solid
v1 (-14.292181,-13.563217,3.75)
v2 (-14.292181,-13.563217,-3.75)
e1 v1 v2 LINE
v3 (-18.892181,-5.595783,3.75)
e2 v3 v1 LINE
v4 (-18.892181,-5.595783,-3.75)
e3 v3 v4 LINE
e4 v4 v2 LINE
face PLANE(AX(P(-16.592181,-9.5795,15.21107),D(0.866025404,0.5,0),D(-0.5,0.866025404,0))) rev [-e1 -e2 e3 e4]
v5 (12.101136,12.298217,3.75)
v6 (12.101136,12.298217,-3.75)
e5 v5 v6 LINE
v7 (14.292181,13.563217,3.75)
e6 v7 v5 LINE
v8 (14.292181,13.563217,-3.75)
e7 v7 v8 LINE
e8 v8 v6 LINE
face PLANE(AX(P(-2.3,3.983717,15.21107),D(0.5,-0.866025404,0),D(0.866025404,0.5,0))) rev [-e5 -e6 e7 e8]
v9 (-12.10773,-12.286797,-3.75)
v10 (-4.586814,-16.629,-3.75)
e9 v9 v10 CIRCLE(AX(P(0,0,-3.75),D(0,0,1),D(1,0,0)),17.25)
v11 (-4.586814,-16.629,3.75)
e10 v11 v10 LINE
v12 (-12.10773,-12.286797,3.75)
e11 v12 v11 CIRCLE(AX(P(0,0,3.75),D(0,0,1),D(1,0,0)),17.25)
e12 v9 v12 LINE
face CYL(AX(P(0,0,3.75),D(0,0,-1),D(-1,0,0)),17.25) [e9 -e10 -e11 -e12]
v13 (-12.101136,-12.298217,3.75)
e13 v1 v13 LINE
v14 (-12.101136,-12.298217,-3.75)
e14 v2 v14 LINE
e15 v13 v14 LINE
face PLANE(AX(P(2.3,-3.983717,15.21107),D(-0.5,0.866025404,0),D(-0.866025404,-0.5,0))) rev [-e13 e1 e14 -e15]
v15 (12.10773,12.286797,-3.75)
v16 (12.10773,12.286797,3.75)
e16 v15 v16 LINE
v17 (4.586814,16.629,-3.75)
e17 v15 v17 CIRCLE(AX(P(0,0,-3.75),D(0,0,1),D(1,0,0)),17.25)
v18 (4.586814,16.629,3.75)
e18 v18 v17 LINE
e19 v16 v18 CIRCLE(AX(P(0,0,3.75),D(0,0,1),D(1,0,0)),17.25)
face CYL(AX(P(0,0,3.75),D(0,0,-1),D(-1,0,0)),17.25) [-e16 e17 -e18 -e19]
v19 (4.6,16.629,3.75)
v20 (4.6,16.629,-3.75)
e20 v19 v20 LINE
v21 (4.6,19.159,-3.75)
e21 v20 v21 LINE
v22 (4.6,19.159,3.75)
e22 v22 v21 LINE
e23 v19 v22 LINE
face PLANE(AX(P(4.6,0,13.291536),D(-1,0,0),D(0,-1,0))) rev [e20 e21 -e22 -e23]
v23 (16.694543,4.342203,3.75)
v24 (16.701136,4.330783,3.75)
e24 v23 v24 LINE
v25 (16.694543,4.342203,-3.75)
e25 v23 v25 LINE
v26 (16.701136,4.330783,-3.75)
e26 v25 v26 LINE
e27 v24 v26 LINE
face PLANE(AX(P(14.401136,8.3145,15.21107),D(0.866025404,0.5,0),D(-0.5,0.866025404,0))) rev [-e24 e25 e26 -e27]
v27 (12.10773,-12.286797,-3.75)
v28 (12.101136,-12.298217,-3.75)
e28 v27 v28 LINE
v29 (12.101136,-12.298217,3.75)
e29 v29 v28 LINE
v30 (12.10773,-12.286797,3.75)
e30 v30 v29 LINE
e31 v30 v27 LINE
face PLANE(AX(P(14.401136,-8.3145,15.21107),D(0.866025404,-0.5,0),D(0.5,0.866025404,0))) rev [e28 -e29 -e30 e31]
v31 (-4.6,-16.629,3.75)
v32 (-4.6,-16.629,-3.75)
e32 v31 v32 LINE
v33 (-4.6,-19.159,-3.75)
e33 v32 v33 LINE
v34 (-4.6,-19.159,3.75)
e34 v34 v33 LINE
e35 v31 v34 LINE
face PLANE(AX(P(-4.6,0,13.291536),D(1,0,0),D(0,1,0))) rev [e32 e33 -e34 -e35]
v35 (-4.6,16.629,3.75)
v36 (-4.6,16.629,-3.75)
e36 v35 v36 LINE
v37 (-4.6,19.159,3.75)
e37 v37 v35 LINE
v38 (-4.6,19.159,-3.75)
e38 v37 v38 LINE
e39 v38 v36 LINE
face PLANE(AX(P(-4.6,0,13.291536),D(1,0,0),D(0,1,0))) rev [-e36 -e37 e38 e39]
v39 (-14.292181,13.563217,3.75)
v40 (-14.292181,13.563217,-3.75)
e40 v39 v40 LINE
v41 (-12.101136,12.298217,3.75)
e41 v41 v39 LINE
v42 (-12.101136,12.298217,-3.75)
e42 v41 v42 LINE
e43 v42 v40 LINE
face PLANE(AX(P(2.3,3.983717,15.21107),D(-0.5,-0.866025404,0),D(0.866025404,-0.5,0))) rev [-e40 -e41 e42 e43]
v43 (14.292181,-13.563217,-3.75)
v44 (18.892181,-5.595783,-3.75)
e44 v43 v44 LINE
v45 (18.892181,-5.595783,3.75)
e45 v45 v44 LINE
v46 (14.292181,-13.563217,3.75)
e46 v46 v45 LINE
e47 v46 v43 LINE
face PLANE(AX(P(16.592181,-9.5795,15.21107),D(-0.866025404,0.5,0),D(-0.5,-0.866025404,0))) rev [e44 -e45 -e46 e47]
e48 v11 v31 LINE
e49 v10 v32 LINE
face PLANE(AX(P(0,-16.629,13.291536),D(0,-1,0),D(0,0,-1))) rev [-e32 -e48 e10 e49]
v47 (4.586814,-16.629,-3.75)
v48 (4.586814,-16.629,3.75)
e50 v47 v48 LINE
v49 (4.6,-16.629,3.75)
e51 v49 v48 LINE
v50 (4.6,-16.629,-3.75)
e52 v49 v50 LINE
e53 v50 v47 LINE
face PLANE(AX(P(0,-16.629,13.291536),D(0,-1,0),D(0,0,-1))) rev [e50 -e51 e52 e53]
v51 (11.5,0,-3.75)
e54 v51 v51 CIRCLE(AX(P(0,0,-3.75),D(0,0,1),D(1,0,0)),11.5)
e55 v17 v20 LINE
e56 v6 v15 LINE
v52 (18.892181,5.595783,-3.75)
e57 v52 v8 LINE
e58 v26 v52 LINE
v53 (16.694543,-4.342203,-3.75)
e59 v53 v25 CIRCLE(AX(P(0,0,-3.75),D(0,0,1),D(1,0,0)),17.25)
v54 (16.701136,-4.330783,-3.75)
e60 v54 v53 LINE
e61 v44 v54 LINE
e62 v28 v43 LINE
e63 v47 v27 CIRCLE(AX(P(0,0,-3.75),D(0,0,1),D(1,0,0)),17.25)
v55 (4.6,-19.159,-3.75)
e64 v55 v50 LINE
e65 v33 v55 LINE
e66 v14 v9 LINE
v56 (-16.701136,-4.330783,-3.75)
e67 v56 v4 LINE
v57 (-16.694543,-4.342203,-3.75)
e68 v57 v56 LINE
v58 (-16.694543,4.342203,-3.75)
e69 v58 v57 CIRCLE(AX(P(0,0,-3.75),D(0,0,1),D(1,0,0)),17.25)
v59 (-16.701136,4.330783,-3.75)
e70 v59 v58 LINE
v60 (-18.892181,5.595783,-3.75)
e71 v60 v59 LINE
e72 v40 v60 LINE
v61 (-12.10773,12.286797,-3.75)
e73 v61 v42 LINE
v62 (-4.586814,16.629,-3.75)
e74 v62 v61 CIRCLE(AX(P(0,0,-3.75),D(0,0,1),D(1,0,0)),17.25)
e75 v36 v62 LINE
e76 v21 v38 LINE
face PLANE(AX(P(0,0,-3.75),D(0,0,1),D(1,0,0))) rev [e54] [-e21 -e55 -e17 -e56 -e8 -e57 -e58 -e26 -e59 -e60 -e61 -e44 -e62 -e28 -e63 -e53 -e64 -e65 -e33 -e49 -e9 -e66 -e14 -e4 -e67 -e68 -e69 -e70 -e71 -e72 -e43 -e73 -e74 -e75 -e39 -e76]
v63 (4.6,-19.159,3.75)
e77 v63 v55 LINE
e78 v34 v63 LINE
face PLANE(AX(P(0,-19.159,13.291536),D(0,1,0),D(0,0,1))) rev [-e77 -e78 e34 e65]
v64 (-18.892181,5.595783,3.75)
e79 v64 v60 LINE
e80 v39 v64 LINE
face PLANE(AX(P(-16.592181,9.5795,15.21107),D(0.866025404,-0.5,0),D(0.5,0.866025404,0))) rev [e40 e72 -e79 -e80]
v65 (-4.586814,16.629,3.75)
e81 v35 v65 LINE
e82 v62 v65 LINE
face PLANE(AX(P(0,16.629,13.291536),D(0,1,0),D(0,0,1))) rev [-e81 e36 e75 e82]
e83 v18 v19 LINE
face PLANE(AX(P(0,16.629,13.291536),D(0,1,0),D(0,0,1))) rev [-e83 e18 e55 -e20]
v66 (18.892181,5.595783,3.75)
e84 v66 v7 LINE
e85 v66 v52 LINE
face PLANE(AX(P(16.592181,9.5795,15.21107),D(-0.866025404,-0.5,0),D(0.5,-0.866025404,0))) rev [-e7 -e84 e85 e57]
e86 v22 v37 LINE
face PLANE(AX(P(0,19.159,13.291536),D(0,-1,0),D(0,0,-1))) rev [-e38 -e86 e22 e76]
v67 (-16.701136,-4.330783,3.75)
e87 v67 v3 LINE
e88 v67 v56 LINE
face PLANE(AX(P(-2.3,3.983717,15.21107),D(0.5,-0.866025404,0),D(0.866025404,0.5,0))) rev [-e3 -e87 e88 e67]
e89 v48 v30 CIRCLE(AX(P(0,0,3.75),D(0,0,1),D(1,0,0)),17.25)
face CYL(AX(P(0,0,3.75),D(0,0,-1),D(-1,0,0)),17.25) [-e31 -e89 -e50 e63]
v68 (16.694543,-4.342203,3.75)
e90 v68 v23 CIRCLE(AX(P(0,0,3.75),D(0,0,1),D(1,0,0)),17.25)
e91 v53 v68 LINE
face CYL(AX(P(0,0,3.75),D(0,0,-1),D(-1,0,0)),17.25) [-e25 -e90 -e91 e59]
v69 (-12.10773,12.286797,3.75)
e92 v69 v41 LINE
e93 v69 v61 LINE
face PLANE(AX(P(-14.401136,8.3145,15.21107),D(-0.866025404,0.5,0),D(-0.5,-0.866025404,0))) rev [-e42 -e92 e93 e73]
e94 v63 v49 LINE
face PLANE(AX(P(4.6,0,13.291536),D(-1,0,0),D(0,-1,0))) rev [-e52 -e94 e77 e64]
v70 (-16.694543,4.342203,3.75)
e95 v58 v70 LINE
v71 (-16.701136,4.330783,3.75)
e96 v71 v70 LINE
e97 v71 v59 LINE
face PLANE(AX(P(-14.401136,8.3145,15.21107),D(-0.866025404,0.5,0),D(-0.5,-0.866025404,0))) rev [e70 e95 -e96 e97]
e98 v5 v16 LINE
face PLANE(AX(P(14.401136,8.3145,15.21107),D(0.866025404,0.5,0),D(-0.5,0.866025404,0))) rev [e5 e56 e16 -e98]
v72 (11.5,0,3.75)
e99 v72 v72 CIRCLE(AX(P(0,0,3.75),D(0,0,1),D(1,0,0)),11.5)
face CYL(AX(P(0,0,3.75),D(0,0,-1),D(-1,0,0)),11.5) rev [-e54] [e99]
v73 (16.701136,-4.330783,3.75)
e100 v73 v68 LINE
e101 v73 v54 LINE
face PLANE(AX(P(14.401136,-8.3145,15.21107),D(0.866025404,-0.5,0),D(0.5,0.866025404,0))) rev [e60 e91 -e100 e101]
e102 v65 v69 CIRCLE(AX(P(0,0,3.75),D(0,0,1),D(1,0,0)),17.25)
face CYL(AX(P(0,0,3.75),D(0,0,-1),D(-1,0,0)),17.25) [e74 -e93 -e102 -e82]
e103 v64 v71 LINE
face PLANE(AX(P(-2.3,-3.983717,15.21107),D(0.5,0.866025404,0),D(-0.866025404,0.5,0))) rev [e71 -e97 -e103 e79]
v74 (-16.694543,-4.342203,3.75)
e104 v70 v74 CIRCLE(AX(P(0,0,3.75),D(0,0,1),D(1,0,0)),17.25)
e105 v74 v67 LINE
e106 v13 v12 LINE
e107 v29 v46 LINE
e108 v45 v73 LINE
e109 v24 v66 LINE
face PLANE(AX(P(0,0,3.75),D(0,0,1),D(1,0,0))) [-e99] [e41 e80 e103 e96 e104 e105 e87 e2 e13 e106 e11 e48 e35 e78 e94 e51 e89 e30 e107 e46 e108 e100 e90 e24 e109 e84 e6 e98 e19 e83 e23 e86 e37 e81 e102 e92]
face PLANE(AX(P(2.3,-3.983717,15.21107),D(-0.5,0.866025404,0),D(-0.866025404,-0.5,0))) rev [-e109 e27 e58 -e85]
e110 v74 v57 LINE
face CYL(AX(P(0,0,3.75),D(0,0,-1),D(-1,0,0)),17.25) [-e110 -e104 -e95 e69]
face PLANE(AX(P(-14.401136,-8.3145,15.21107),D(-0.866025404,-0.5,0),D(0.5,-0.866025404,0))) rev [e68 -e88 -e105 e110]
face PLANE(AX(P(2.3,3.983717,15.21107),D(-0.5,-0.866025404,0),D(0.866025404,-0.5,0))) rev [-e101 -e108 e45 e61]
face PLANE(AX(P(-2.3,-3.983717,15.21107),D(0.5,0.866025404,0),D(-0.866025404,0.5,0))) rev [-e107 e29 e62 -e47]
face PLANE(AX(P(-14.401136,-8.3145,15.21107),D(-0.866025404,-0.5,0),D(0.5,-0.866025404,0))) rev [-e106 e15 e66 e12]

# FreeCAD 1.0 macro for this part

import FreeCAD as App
import Part
import Sketcher

V = App.Vector

doc = App.newDocument("Part")
params = doc.addObject("Spreadsheet::Sheet", "Params")
for row, (alias, value) in enumerate([
    ("sketch1_diameter", "23 mm"),
    ("sketch1_diameter2", "34.5 mm"),
    ("pad1_length", "7.5 mm"),
    ("sketch2_width", "9.2 mm"),
    ("sketch2_height", "2.53 mm"),
    ("pad2_length", "7.5 mm"),
], start=1):
    params.set(f"A{row}", alias)
    params.set(f"B{row}", "=" + value)
    params.setAlias(f"B{row}", alias)

body = doc.addObject("PartDesign::Body", "Body")

sketch1 = body.newObject("Sketcher::SketchObject", "Sketch")
sketch1.AttachmentSupport = (doc.getObject("XY_Plane"), [""])
sketch1.MapMode = "FlatFace"
sketch1.addGeometry([
    Part.Circle(V(0, 0, 0), V(0, 0, 1), 17),
    Part.Circle(V(0, 0, 0), V(0, 0, 1), 12),
], False)
sketch1.addConstraint([
    Sketcher.Constraint("Coincident", 0, 3, -1, 1),
    Sketcher.Constraint("Coincident", 1, 3, -1, 1),
    Sketcher.Constraint("Diameter", 1, 23.0),
    Sketcher.Constraint("Diameter", 0, 34.5),
])
sketch1.setExpression("Constraints[2]", "Params.sketch1_diameter")
sketch1.setExpression("Constraints[3]", "Params.sketch1_diameter2")
pad1 = body.newObject("PartDesign::Pad", "Pad")
pad1.Profile = sketch1
pad1.setExpression("Length", "Params.pad1_length")
pad1.Midplane = True

sketch2 = body.newObject("Sketcher::SketchObject", "Sketch001")
sketch2.AttachmentSupport = (doc.getObject("XY_Plane"), [""])
sketch2.MapMode = "FlatFace"
sketch2.AttachmentOffset = App.Placement(V(0, 0, -3.75), App.Rotation())
sketch2.addGeometry([
    Part.LineSegment(V(-4.6, 19.2, 0), V(-4.6, 16.6, 0)),
    Part.LineSegment(V(-4.6, 16.6, 0), V(4.6, 16.6, 0)),
    Part.LineSegment(V(4.6, 16.6, 0), V(4.6, 19.2, 0)),
    Part.LineSegment(V(4.6, 19.2, 0), V(-4.6, 19.2, 0)),
], False)
sketch2.addConstraint([
    Sketcher.Constraint("Coincident", 0, 2, 1, 1),
    Sketcher.Constraint("Coincident", 1, 2, 2, 1),
    Sketcher.Constraint("Coincident", 2, 2, 3, 1),
    Sketcher.Constraint("Coincident", 3, 2, 0, 1),
    Sketcher.Constraint("Vertical", 0),
    Sketcher.Constraint("Horizontal", 1),
    Sketcher.Constraint("Vertical", 2),
    Sketcher.Constraint("Horizontal", 3),
    Sketcher.Constraint("DistanceX", 1, 1, 1, 2, 9.2),
    Sketcher.Constraint("DistanceY", 0, 2, 0, 1, 2.53),
    Sketcher.Constraint("DistanceX", 0, 2, -1, 1, 4.6),
    Sketcher.Constraint("DistanceY", -1, 1, 0, 2, 16.629),
])
sketch2.setExpression("Constraints[8]", "Params.sketch2_width")
sketch2.setExpression("Constraints[9]", "Params.sketch2_height")
pad2 = body.newObject("PartDesign::Pad", "Pad001")
pad2.Profile = sketch2
pad2.setExpression("Length", "Params.pad2_length")
doc.recompute()

polarpattern = body.newObject("PartDesign::PolarPattern", "PolarPattern")
polarpattern.Originals = [pad2]
polarpattern.Axis = (doc.getObject("Z_Axis"), [""])
polarpattern.Angle = 360
polarpattern.Occurrences = 6
body.Tip = polarpattern

doc.recompute()
